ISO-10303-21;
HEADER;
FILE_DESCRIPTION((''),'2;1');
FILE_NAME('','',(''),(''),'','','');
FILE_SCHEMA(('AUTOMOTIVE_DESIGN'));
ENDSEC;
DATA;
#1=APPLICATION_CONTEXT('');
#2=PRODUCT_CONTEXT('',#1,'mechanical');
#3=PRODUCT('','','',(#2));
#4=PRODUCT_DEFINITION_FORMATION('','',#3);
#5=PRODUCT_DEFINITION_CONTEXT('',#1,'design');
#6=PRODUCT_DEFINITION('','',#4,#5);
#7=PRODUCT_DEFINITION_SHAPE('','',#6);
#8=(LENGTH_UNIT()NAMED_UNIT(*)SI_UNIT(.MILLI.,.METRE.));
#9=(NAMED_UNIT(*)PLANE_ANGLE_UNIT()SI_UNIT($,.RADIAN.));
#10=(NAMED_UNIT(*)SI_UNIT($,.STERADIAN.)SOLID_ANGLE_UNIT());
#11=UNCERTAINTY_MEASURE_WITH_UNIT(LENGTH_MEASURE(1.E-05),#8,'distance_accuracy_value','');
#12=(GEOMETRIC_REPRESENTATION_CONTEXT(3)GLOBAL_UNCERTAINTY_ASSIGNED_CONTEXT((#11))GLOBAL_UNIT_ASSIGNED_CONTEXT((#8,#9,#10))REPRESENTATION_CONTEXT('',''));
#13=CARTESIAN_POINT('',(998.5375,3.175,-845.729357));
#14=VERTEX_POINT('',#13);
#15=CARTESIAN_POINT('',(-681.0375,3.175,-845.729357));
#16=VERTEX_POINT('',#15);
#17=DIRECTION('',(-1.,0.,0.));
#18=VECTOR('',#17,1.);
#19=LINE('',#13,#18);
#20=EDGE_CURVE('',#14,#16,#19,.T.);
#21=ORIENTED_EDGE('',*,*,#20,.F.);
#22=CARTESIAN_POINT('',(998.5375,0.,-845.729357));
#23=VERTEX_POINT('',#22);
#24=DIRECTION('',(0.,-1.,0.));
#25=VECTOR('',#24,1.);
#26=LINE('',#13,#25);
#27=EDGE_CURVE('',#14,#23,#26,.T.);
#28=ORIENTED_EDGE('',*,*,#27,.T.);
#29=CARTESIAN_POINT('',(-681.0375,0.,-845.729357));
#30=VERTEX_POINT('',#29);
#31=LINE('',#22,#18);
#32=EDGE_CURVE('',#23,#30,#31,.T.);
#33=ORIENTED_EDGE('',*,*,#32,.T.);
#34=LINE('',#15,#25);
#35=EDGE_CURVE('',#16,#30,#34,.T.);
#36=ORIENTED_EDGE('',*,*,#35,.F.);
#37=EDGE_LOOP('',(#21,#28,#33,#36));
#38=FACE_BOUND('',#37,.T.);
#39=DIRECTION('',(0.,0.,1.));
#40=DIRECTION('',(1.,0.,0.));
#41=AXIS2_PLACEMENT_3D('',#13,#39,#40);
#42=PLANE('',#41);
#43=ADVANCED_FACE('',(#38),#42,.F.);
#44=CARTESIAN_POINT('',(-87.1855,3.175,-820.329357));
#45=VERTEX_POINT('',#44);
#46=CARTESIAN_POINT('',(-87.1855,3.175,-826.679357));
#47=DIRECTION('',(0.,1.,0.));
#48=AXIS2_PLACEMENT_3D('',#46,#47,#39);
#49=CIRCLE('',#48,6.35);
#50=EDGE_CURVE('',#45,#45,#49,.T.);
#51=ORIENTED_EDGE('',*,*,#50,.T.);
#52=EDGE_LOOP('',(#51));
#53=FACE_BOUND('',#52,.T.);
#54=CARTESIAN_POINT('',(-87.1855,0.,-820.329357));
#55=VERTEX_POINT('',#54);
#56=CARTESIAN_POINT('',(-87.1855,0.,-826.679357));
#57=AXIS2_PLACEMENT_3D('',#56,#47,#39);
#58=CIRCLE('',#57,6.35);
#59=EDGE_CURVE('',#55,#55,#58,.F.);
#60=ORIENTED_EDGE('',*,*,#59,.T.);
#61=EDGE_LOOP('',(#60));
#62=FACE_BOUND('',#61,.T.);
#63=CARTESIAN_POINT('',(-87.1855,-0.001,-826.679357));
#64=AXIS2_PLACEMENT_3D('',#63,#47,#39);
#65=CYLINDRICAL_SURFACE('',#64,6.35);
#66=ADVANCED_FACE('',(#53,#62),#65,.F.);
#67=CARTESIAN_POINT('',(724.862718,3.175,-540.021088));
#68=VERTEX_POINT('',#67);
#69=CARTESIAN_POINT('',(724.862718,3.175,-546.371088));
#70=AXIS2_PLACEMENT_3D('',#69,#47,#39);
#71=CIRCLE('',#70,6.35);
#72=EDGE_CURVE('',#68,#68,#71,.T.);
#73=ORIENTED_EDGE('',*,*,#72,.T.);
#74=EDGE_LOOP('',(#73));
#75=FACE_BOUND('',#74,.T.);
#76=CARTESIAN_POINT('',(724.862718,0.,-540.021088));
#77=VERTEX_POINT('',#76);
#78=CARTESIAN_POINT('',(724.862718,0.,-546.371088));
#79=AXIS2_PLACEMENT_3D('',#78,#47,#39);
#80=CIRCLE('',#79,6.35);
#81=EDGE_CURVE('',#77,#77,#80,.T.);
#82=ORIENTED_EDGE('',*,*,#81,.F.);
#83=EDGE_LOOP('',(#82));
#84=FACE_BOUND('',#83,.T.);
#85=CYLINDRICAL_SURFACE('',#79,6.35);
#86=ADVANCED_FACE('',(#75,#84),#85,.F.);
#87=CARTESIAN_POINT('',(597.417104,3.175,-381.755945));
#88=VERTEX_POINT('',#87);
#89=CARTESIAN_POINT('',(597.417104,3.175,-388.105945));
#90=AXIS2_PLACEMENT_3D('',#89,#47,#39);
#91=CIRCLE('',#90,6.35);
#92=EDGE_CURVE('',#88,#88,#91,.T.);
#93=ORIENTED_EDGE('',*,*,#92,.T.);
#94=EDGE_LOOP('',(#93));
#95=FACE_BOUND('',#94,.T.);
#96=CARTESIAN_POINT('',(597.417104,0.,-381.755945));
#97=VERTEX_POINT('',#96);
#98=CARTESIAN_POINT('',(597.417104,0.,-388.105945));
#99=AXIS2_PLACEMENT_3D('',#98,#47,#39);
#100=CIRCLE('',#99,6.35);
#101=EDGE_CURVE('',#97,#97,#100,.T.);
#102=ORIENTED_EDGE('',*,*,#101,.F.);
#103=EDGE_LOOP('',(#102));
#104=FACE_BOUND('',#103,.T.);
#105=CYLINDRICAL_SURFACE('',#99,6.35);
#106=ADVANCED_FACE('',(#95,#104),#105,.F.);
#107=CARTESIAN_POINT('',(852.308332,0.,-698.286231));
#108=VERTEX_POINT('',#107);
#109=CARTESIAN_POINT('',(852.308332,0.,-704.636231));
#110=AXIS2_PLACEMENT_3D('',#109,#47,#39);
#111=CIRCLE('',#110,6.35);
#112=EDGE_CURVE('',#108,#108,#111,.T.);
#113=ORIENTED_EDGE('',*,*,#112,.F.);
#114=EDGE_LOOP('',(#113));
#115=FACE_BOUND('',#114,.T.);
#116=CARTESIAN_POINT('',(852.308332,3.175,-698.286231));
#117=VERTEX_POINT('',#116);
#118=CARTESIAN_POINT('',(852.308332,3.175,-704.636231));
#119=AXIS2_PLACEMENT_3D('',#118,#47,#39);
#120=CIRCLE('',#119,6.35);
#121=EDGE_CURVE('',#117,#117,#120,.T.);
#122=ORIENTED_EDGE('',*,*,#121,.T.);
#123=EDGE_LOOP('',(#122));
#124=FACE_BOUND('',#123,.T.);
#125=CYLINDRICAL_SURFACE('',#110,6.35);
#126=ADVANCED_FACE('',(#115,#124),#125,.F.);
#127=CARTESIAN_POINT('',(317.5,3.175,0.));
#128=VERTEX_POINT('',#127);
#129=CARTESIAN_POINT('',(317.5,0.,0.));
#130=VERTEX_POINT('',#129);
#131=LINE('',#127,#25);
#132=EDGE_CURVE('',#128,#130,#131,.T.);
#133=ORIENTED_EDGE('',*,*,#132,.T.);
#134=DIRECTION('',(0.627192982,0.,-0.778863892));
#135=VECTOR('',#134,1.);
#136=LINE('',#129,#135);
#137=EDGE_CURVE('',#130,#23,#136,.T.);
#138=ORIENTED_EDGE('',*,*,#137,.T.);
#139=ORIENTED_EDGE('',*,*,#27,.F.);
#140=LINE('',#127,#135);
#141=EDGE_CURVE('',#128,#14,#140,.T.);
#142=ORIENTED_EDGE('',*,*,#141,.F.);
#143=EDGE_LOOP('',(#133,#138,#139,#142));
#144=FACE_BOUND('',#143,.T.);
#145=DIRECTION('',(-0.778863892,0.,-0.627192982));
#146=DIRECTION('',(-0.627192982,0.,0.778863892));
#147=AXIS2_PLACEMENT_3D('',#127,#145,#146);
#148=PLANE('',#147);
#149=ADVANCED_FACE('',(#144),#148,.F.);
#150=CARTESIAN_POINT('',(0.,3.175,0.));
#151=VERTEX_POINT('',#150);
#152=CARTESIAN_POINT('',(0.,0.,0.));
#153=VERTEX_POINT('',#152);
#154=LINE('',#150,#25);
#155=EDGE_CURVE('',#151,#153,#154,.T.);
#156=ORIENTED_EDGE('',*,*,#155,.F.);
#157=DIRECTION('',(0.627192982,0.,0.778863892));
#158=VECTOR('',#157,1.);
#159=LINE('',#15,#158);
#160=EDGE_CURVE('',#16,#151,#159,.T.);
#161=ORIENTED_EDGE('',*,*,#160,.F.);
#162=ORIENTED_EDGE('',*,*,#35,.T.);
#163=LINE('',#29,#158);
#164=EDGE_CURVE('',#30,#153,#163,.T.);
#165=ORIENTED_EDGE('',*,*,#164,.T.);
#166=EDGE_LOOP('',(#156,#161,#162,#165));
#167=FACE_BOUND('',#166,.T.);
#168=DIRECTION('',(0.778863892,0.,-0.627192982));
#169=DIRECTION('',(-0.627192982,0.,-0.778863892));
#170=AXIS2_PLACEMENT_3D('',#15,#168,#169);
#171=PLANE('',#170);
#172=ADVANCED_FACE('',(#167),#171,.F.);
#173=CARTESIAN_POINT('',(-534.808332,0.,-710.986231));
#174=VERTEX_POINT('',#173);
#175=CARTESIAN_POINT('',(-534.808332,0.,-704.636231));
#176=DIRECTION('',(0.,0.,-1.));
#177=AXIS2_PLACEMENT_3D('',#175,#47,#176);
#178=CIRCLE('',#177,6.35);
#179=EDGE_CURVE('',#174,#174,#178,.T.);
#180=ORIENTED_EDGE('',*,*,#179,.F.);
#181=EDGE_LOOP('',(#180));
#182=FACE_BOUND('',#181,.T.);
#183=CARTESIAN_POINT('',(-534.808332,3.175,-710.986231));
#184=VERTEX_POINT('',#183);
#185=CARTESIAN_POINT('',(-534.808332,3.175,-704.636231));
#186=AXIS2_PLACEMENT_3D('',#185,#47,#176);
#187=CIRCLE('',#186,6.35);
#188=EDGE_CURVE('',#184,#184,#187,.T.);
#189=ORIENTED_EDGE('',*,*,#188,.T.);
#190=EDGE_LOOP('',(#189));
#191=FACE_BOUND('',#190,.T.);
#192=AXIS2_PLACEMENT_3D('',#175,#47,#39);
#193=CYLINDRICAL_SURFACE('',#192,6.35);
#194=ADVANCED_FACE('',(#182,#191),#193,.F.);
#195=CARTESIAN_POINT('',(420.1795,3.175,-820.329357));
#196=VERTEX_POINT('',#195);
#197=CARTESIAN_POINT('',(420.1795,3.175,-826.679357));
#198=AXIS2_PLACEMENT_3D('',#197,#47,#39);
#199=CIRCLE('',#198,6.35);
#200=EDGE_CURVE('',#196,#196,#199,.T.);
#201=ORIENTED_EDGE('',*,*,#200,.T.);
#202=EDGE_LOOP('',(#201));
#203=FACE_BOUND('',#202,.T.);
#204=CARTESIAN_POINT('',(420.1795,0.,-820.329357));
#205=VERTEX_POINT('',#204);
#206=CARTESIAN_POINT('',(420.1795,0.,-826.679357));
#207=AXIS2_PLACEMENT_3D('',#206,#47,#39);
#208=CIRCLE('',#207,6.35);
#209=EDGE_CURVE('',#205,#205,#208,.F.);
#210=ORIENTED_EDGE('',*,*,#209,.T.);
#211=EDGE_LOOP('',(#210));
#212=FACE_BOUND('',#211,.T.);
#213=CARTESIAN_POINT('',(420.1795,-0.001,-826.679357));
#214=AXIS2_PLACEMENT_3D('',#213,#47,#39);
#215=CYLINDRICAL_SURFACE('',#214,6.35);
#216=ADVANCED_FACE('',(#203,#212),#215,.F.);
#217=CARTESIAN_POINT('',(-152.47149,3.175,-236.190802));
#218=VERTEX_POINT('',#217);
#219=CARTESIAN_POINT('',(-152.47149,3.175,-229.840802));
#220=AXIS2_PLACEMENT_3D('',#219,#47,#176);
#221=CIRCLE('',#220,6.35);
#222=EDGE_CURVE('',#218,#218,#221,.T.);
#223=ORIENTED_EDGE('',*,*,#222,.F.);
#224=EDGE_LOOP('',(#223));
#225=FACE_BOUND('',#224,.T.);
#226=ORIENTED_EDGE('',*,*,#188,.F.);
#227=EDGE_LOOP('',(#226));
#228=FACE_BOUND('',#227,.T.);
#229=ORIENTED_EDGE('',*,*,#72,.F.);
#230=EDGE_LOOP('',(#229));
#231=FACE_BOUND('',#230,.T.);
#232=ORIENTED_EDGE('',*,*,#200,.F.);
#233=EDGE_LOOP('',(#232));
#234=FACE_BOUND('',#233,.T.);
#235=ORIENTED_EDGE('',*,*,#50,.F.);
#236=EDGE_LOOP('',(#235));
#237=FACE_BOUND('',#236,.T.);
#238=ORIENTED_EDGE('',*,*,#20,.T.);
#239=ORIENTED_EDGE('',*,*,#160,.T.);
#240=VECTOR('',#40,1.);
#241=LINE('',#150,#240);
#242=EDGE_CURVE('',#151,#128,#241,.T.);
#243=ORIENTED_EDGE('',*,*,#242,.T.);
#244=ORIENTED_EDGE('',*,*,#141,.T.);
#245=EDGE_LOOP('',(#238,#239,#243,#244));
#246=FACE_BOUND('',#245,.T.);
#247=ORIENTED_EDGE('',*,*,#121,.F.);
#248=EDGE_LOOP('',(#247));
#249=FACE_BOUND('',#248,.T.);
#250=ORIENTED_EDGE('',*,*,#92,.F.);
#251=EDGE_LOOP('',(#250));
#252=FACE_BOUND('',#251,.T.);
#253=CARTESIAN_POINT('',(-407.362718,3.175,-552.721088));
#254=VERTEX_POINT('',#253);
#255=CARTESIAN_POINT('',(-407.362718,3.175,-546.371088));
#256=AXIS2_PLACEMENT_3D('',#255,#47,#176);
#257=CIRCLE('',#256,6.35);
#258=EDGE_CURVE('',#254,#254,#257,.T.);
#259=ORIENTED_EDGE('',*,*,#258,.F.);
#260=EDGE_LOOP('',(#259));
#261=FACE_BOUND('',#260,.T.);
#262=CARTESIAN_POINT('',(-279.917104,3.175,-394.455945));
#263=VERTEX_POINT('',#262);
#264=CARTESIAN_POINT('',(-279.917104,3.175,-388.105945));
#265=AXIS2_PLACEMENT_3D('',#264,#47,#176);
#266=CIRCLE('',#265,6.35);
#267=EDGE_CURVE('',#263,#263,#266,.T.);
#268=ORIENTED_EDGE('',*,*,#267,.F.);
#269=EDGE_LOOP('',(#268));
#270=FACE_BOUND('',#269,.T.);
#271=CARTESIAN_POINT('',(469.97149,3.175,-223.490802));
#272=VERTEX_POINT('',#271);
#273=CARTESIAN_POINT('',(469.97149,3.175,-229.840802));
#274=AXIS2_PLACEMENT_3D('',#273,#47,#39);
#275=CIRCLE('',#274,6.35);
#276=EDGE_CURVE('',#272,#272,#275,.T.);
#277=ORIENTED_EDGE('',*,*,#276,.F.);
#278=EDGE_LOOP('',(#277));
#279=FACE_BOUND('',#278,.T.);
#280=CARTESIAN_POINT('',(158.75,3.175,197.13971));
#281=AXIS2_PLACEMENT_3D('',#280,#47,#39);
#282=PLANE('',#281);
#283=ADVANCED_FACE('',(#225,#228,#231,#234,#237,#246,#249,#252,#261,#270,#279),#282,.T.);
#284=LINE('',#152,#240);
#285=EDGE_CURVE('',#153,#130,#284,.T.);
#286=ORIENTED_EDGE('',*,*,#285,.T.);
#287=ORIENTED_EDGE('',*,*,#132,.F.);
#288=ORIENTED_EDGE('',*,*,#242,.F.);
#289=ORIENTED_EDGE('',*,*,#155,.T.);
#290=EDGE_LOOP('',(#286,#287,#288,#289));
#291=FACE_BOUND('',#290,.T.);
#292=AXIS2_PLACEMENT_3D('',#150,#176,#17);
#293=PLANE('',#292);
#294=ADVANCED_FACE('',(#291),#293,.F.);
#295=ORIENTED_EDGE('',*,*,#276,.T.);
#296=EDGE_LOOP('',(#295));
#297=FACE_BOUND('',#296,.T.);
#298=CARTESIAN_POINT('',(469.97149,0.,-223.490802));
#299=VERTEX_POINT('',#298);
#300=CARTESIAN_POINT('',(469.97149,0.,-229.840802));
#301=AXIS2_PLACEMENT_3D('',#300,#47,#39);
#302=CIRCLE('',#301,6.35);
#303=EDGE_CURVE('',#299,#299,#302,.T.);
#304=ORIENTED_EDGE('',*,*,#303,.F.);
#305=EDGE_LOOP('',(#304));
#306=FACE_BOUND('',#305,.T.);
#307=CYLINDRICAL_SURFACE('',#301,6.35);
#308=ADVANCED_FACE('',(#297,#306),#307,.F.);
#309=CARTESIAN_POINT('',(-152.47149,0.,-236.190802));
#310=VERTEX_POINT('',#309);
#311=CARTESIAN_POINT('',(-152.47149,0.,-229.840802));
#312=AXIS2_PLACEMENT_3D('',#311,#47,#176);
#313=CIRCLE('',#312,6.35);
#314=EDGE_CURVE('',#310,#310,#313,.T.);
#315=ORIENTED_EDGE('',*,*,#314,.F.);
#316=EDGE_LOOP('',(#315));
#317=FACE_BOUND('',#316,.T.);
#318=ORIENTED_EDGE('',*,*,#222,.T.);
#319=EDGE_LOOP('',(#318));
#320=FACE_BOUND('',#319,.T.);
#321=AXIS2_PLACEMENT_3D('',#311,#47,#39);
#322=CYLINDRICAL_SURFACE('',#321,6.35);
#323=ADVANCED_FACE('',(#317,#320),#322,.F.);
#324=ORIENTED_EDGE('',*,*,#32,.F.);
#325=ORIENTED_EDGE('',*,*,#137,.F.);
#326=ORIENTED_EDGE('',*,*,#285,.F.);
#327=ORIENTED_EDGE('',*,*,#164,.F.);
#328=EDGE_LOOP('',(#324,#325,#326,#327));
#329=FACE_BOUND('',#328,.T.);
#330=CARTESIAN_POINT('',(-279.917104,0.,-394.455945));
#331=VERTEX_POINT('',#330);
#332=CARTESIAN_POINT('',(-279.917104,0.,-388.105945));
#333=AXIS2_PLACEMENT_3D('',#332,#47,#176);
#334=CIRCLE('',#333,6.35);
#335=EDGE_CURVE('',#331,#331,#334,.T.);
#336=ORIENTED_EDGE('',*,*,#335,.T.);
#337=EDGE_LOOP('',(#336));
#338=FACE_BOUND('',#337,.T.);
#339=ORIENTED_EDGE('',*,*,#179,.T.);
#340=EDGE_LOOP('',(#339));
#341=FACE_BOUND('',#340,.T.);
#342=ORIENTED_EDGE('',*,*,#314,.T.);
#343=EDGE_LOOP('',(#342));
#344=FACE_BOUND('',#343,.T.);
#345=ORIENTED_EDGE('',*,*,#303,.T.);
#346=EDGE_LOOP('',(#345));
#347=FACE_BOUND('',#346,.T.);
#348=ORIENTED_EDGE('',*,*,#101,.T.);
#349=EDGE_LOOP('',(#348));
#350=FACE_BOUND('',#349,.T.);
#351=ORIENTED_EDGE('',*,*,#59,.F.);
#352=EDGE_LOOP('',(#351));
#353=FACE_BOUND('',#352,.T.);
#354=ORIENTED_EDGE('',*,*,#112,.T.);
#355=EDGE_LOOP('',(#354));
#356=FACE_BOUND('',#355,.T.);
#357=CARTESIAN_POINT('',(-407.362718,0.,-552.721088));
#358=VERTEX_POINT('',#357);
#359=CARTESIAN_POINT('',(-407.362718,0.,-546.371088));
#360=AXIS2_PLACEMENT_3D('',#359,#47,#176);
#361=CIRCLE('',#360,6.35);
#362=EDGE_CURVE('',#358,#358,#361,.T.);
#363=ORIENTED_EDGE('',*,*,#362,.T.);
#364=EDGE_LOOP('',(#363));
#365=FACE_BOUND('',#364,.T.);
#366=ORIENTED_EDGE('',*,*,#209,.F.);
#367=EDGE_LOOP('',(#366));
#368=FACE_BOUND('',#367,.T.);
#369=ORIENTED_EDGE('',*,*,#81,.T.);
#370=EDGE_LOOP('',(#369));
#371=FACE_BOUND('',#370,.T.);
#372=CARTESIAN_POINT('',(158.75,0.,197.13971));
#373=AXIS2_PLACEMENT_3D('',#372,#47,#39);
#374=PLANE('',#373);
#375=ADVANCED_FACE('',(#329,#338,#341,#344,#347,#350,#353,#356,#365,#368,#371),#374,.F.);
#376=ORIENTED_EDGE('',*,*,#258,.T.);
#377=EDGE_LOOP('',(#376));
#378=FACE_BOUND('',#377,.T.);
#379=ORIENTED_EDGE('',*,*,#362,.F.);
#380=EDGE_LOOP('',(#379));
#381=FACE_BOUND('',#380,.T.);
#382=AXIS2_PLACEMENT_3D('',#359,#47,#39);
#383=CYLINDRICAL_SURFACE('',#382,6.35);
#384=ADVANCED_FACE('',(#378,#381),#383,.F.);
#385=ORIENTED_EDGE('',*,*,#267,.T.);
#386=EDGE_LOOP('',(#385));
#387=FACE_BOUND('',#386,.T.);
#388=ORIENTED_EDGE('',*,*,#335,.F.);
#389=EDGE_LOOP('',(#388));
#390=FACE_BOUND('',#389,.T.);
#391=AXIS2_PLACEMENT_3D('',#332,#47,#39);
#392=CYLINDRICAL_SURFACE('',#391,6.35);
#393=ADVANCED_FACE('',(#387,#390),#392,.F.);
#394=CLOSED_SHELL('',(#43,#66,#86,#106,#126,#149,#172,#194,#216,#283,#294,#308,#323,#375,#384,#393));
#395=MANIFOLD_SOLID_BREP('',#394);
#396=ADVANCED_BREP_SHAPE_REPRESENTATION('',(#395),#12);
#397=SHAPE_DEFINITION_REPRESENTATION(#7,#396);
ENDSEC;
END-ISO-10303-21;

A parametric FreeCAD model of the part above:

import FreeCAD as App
import Part
import Sketcher
from FreeCAD import Vector
Q = App.Units.Quantity


def add_polygon(sketch, points):
    """Adds a closed chain of lines whose ends are joined by coincident constraints."""
    first, n = sketch.GeometryCount, len(points)
    for a, b in zip(points, points[1:] + points[:1]):
        sketch.addGeometry(Part.LineSegment(App.Vector(*a, 0), App.Vector(*b, 0)), False)
    for i in range(n):
        sketch.addConstraint(Sketcher.Constraint("Coincident", first + i, 2, first + (i + 1) % n, 1))

doc = App.newDocument("Part")
params = doc.addObject("Spreadsheet::Sheet", "Params")
for row, (alias, value) in enumerate([
    ("sketch1_width", "12.5 in"),
    ("sketch1_length", "42.75 in"),
    ("sketch1_width2", "66.125 in"),
    ("pad1_length", "0.125 in"),
    ("sketch2_diameter", "0.5 in"),
    ("sketch3_diameter", "0.5 in"),
    ("sketch4_diameter", "0.5 in"),
], start=1):
    params.set(f"A{row}", alias)
    params.set(f"B{row}", "=" + value)
    params.setAlias(f"B{row}", alias)

body = doc.addObject("PartDesign::Body", "Body")

sketch1 = doc.addObject("Sketcher::SketchObject", "Sketch")
body.addObject(sketch1)
sketch1.AttachmentSupport = (doc.XZ_Plane, [""])
sketch1.MapMode = "FlatFace"
add_polygon(sketch1, [(0, 0), (318, 0), (999, -846), (-681, -846)])
sketch1.addConstraint([
    Sketcher.Constraint("Horizontal", 0),
    Sketcher.Constraint("Horizontal", 2),
    Sketcher.Constraint("Coincident", 3, 2, -1, 1),
    Sketcher.Constraint("Equal", 1, 3),
    Sketcher.Constraint("DistanceX", 0, 1, 0, 2, Q("12.5 in")),
    Sketcher.Constraint("Distance", 1, Q("42.75 in")),
    Sketcher.Constraint("DistanceX", 2, 2, 2, 1, Q("66.125 in")),
])
sketch1.setExpression("Constraints[8]", "Params.sketch1_width")
sketch1.setExpression("Constraints[9]", "Params.sketch1_length")
sketch1.setExpression("Constraints[10]", "Params.sketch1_width2")
pad1 = doc.addObject("PartDesign::Pad", "Pad")
body.addObject(pad1)
pad1.Profile = sketch1
pad1.setExpression("Length", "Params.pad1_length")
pad1.Reversed = True

sketch2 = doc.addObject("Sketcher::SketchObject", "Sketch001")
body.addObject(sketch2)
sketch2.AttachmentSupport = (doc.XZ_Plane, [""])
sketch2.MapMode = "FlatFace"
sketch2.AttachmentOffset = App.Placement(Vector(0, 0, -0.125 * 25.4), App.Rotation())
sketch2.addGeometry(Part.Circle(Vector(-87, -827, 0), Vector(0, 0, 1), 6), False)
sketch2.addConstraint([
    Sketcher.Constraint("Diameter", 0, Q("0.5 in")),
    Sketcher.Constraint("DistanceX", 0, 3, -1, 1, Q("3.4325 in")),
    Sketcher.Constraint("DistanceY", 0, 3, -1, 1, 826.679357),
])
sketch2.setExpression("Constraints[0]", "Params.sketch2_diameter")
pocket1 = doc.addObject("PartDesign::Pocket", "Pocket")
body.addObject(pocket1)
pocket1.Profile = sketch2
pocket1.Type = "UpToFirst"
pocket1.Reversed = True

sketch3 = doc.addObject("Sketcher::SketchObject", "Sketch002")
body.addObject(sketch3)
sketch3.AttachmentSupport = (doc.XZ_Plane, [""])
sketch3.MapMode = "FlatFace"
sketch3.AttachmentOffset = App.Placement(Vector(0, 0, -0.125 * 25.4), App.Rotation())
sketch3.addGeometry(Part.Circle(Vector(420, -827, 0), Vector(0, 0, 1), 6), False)
sketch3.addConstraint([
    Sketcher.Constraint("Diameter", 0, Q("0.5 in")),
    Sketcher.Constraint("DistanceX", -1, 1, 0, 3, Q("16.5425 in")),
    Sketcher.Constraint("DistanceY", 0, 3, -1, 1, 826.679357),
])
sketch3.setExpression("Constraints[0]", "Params.sketch3_diameter")
pocket2 = doc.addObject("PartDesign::Pocket", "Pocket001")
body.addObject(pocket2)
pocket2.Profile = sketch3
pocket2.Type = "UpToFirst"
pocket2.Reversed = True

sketch4 = doc.addObject("Sketcher::SketchObject", "Sketch003")
body.addObject(sketch4)
sketch4.AttachmentSupport = (doc.XZ_Plane, [""])
sketch4.MapMode = "FlatFace"
sketch4.AttachmentOffset = App.Placement(Vector(0, 0, -0.125 * 25.4), App.Rotation())
sketch4.addGeometry([
    Part.Circle(Vector(852, -705, 0), Vector(0, 0, 1), 6),
    Part.Circle(Vector(470, -230, 0), Vector(0, 0, 1), 6),
    Part.Circle(Vector(725, -546, 0), Vector(0, 0, 1), 6),
    Part.Circle(Vector(597, -388, 0), Vector(0, 0, 1), 6),
    Part.Circle(Vector(-535, -705, 0), Vector(0, 0, 1), 6),
    Part.Circle(Vector(-407, -546, 0), Vector(0, 0, 1), 6),
    Part.Circle(Vector(-280, -388, 0), Vector(0, 0, 1), 6),
    Part.Circle(Vector(-152, -230, 0), Vector(0, 0, 1), 6),
], False)
sketch4.addConstraint([
    Sketcher.Constraint("Equal", 0, 1),
    Sketcher.Constraint("Equal", 1, 2),
    Sketcher.Constraint("Equal", 2, 3),
    Sketcher.Constraint("Equal", 3, 4),
    Sketcher.Constraint("Equal", 4, 5),
    Sketcher.Constraint("Equal", 5, 6),
    Sketcher.Constraint("Equal", 6, 7),
    Sketcher.Constraint("Horizontal", 0, 3, 4, 3),
    Sketcher.Constraint("Horizontal", 2, 3, 5, 3),
    Sketcher.Constraint("Horizontal", 3, 3, 6, 3),
    Sketcher.Constraint("Horizontal", 1, 3, 7, 3),
    Sketcher.Constraint("Diameter", 0, Q("0.5 in")),
    Sketcher.Constraint("DistanceY", 1, 3, -1, 1, 229.840802),
    Sketcher.Constraint("DistanceX", -1, 1, 0, 3, 852.308332),
    Sketcher.Constraint("DistanceY", 0, 3, -1, 1, 704.636231),
    Sketcher.Constraint("DistanceX", -1, 1, 1, 3, 469.97149),
    Sketcher.Constraint("DistanceX", 4, 3, -1, 1, 534.808332),
    Sketcher.Constraint("DistanceX", 7, 3, -1, 1, 152.47149),
    Sketcher.Constraint("DistanceX", 1, 3, 2, 3, 254.891228),
    Sketcher.Constraint("DistanceX", 3, 3, 0, 3, 254.891228),
    Sketcher.Constraint("DistanceX", 5, 3, 3, 3, 1004.779822),
    Sketcher.Constraint("DistanceX", 4, 3, 6, 3, 254.891228),
    Sketcher.Constraint("DistanceY", 2, 3, -1, 1, 546.371088),
    Sketcher.Constraint("DistanceY", 3, 3, -1, 1, 388.105945),
])
sketch4.setExpression("Constraints[11]", "Params.sketch4_diameter")
pocket3 = doc.addObject("PartDesign::Pocket", "Pocket002")
body.addObject(pocket3)
pocket3.Profile = sketch4
pocket3.Type = "ThroughAll"
pocket3.Reversed = True

doc.recompute()
